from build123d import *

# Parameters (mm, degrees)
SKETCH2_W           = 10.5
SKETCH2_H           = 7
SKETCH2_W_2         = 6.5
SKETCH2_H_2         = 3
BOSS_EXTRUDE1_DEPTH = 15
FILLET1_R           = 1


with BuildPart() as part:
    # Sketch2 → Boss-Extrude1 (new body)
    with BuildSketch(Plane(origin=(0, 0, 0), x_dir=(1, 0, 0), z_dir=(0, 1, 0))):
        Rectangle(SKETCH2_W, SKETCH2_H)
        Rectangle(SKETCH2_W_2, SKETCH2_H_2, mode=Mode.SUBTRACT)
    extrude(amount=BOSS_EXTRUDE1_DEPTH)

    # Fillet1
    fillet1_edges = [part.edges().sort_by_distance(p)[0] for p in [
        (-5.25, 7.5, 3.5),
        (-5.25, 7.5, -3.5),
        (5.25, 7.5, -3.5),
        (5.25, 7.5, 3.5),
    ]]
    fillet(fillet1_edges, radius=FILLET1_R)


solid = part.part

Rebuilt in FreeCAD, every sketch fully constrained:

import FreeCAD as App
import Part
import Sketcher
from FreeCAD import Vector


def edges_at(feature, points):
    """Names of the edges that pass closest to the given points."""
    edges = feature.Shape.Edges
    near = lambda p: min(range(len(edges)), key=lambda i: edges[i].distToShape(Part.Vertex(*p))[0])
    return sorted({f"Edge{near(p) + 1}" for p in points})


def add_polygon(sketch, points):
    """Adds a closed chain of lines whose ends are joined by coincident constraints."""
    first, n = sketch.GeometryCount, len(points)
    for a, b in zip(points, points[1:] + points[:1]):
        sketch.addGeometry(Part.LineSegment(App.Vector(*a, 0), App.Vector(*b, 0)), False)
    for i in range(n):
        sketch.addConstraint(Sketcher.Constraint("Coincident", first + i, 2, first + (i + 1) % n, 1))

doc = App.newDocument("Part")
body = doc.addObject("PartDesign::Body", "Body")

# Sketch on XZ plane
sketch1 = doc.addObject("Sketcher::SketchObject", "Sketch")
body.addObject(sketch1)
sketch1.AttachmentSupport = (doc.XZ_Plane, [""])
sketch1.MapMode = "FlatFace"
add_polygon(sketch1, [(-5.25, -3.5), (-5.25, 3.5), (5.25, 3.5), (5.25, -3.5)])  # lines 0-3
add_polygon(sketch1, [(3.25, 1.5), (-3.25, 1.5), (-3.25, -1.5), (3.25, -1.5)])  # lines 4-7
sketch1.addConstraint(Sketcher.Constraint("Vertical", 0))
sketch1.addConstraint(Sketcher.Constraint("Horizontal", 1))
sketch1.addConstraint(Sketcher.Constraint("Vertical", 2))
sketch1.addConstraint(Sketcher.Constraint("Horizontal", 3))
sketch1.addConstraint(Sketcher.Constraint("Horizontal", 4))
sketch1.addConstraint(Sketcher.Constraint("Vertical", 5))
sketch1.addConstraint(Sketcher.Constraint("Horizontal", 6))
sketch1.addConstraint(Sketcher.Constraint("Vertical", 7))
sketch1.addConstraint(Sketcher.Constraint("Symmetric", 0, 2, 2, 2, -1, 1))
sketch1.addConstraint(Sketcher.Constraint("Symmetric", 4, 2, 6, 2, -1, 1))
sketch1.addConstraint(Sketcher.Constraint("DistanceY", 0, 1, 0, 2, 7.0))
sketch1.addConstraint(Sketcher.Constraint("DistanceY", 5, 2, 5, 1, 3.0))
sketch1.addConstraint(Sketcher.Constraint("DistanceX", 1, 1, 1, 2, 10.5))
sketch1.addConstraint(Sketcher.Constraint("DistanceX", 4, 2, 4, 1, 6.5))
pad1 = doc.addObject("PartDesign::Pad", "Pad")
body.addObject(pad1)
pad1.Profile = sketch1
pad1.Length = 15
pad1.Reversed = True
doc.recompute()

fillet = doc.addObject("PartDesign::Fillet", "Fillet")
body.addObject(fillet)
fillet.Base = (pad1, edges_at(pad1, [
    (-5.25, 7.5, 3.5),
    (-5.25, 7.5, -3.5),
    (5.25, 7.5, -3.5),
    (5.25, 7.5, 3.5),
]))
fillet.Radius = 1

doc.recompute()
